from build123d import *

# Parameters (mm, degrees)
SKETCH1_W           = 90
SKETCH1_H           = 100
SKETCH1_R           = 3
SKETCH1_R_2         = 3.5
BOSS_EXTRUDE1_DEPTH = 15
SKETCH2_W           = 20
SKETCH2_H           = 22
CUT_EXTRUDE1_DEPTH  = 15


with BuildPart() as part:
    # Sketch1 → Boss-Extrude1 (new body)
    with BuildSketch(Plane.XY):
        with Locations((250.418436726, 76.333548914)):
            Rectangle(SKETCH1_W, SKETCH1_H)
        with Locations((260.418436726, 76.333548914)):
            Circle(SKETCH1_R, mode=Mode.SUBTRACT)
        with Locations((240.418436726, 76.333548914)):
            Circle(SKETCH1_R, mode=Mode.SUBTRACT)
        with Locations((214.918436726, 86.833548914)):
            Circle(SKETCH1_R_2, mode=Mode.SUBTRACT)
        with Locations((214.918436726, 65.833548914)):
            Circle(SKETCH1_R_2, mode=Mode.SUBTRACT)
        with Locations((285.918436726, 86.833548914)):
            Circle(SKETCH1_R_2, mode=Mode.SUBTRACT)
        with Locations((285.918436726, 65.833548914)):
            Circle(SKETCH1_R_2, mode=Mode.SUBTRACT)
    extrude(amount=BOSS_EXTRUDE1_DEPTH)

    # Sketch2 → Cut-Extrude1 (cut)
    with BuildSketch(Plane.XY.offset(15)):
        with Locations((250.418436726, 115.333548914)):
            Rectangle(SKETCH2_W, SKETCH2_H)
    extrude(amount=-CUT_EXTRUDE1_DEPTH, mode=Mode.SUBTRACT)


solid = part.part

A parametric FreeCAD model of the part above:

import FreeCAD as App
import Part
import Sketcher
from FreeCAD import Vector
Q = App.Units.Quantity

doc = App.newDocument("Part")
body = doc.addObject("PartDesign::Body", "Body")

# Sketch on XY plane
sketch1 = body.newObject("Sketcher::SketchObject", "Sketch")
sketch1.AttachmentSupport = (doc.getObject("XY_Plane"), [""])
sketch1.MapMode = "FlatFace"
sketch1.addGeometry(Part.LineSegment(Vector(205.418437, 126.333549, 0), Vector(205.418437, 26.333549, 0)), False)
sketch1.addGeometry(Part.LineSegment(Vector(205.418437, 26.333549, 0), Vector(295.418437, 26.333549, 0)), False)
sketch1.addGeometry(Part.LineSegment(Vector(295.418437, 26.333549, 0), Vector(295.418437, 126.333549, 0)), False)
sketch1.addGeometry(Part.LineSegment(Vector(295.418437, 126.333549, 0), Vector(205.418437, 126.333549, 0)), False)
sketch1.addGeometry(Part.Circle(Vector(214.918437, 65.833549, 0), Vector(0, 0, 1), 3.5), False)
sketch1.addGeometry(Part.Circle(Vector(285.918437, 65.833549, 0), Vector(0, 0, 1), 3.5), False)
sketch1.addGeometry(Part.Circle(Vector(240.418437, 76.333549, 0), Vector(0, 0, 1), 3), False)
sketch1.addGeometry(Part.Circle(Vector(214.918437, 86.833549, 0), Vector(0, 0, 1), 3.5), False)
sketch1.addGeometry(Part.Circle(Vector(260.418437, 76.333549, 0), Vector(0, 0, 1), 3), False)
sketch1.addGeometry(Part.Circle(Vector(285.918437, 86.833549, 0), Vector(0, 0, 1), 3.5), False)
sketch1.addConstraint(Sketcher.Constraint("Coincident", 0, 2, 1, 1))
sketch1.addConstraint(Sketcher.Constraint("Coincident", 1, 2, 2, 1))
sketch1.addConstraint(Sketcher.Constraint("Coincident", 2, 2, 3, 1))
sketch1.addConstraint(Sketcher.Constraint("Coincident", 3, 2, 0, 1))
sketch1.addConstraint(Sketcher.Constraint("Vertical", 0))
sketch1.addConstraint(Sketcher.Constraint("Horizontal", 1))
sketch1.addConstraint(Sketcher.Constraint("Vertical", 2))
sketch1.addConstraint(Sketcher.Constraint("Horizontal", 3))
sketch1.addConstraint(Sketcher.Constraint("Equal", 4, 5))
sketch1.addConstraint(Sketcher.Constraint("Equal", 5, 7))
sketch1.addConstraint(Sketcher.Constraint("Equal", 6, 8))
sketch1.addConstraint(Sketcher.Constraint("Equal", 7, 9))
sketch1.addConstraint(Sketcher.Constraint("Horizontal", 4, 3, 5, 3))
sketch1.addConstraint(Sketcher.Constraint("Horizontal", 6, 3, 8, 3))
sketch1.addConstraint(Sketcher.Constraint("Horizontal", 7, 3, 9, 3))
sketch1.addConstraint(Sketcher.Constraint("Vertical", 4, 3, 7, 3))
sketch1.addConstraint(Sketcher.Constraint("Vertical", 5, 3, 9, 3))
sketch1.addConstraint(Sketcher.Constraint("Diameter", 4, Q("7 mm")))
sketch1.addConstraint(Sketcher.Constraint("Diameter", 6, Q("6 mm")))
sketch1.addConstraint(Sketcher.Constraint("DistanceX", 1, 1, 1, 2, Q("90 mm")))
sketch1.addConstraint(Sketcher.Constraint("DistanceY", 0, 2, 0, 1, Q("100 mm")))
sketch1.addConstraint(Sketcher.Constraint("DistanceX", 4, 3, 5, 3, Q("71 mm")))
sketch1.addConstraint(Sketcher.Constraint("DistanceY", 4, 3, 7, 3, Q("21 mm")))
sketch1.addConstraint(Sketcher.Constraint("DistanceX", 6, 3, 8, 3, Q("20 mm")))
sketch1.addConstraint(Sketcher.Constraint("DistanceX", 0, 2, 6, 3, Q("35 mm")))
sketch1.addConstraint(Sketcher.Constraint("DistanceY", 0, 2, 6, 3, Q("50 mm")))
sketch1.addConstraint(Sketcher.Constraint("DistanceX", 4, 3, 6, 3, Q("25.5 mm")))
sketch1.addConstraint(Sketcher.Constraint("DistanceY", 4, 3, 6, 3, Q("10.5 mm")))
sketch1.addConstraint(Sketcher.Constraint("DistanceY", -1, 1, 4, 3, Q("65.833549 mm")))
sketch1.addConstraint(Sketcher.Constraint("DistanceX", -1, 1, 4, 3, Q("214.918437 mm")))
pad1 = body.newObject("PartDesign::Pad", "Pad")
pad1.Profile = sketch1
pad1.Length = 15

# Sketch on XY plane
sketch2 = body.newObject("Sketcher::SketchObject", "Sketch001")
sketch2.AttachmentSupport = (doc.getObject("XY_Plane"), [""])
sketch2.MapMode = "FlatFace"
sketch2.AttachmentOffset = App.Placement(Vector(0, 0, 15), App.Rotation())
sketch2.addGeometry(Part.LineSegment(Vector(240.418437, 126.333549, 0), Vector(240.418437, 104.333549, 0)), False)
sketch2.addGeometry(Part.LineSegment(Vector(240.418437, 104.333549, 0), Vector(260.418437, 104.333549, 0)), False)
sketch2.addGeometry(Part.LineSegment(Vector(260.418437, 104.333549, 0), Vector(260.418437, 126.333549, 0)), False)
sketch2.addGeometry(Part.LineSegment(Vector(260.418437, 126.333549, 0), Vector(240.418437, 126.333549, 0)), False)
sketch2.addConstraint(Sketcher.Constraint("Coincident", 0, 2, 1, 1))
sketch2.addConstraint(Sketcher.Constraint("Coincident", 1, 2, 2, 1))
sketch2.addConstraint(Sketcher.Constraint("Coincident", 2, 2, 3, 1))
sketch2.addConstraint(Sketcher.Constraint("Coincident", 3, 2, 0, 1))
sketch2.addConstraint(Sketcher.Constraint("Vertical", 0))
sketch2.addConstraint(Sketcher.Constraint("Horizontal", 1))
sketch2.addConstraint(Sketcher.Constraint("Vertical", 2))
sketch2.addConstraint(Sketcher.Constraint("Horizontal", 3))
sketch2.addConstraint(Sketcher.Constraint("DistanceX", 1, 1, 1, 2, Q("20 mm")))
sketch2.addConstraint(Sketcher.Constraint("DistanceY", 0, 2, 0, 1, Q("22 mm")))
sketch2.addConstraint(Sketcher.Constraint("DistanceY", -1, 1, 0, 2, Q("104.333549 mm")))
sketch2.addConstraint(Sketcher.Constraint("DistanceX", -1, 1, 0, 2, Q("240.418437 mm")))
pocket1 = body.newObject("PartDesign::Pocket", "Pocket")
pocket1.Profile = sketch2
pocket1.Length = 15

doc.recompute()
